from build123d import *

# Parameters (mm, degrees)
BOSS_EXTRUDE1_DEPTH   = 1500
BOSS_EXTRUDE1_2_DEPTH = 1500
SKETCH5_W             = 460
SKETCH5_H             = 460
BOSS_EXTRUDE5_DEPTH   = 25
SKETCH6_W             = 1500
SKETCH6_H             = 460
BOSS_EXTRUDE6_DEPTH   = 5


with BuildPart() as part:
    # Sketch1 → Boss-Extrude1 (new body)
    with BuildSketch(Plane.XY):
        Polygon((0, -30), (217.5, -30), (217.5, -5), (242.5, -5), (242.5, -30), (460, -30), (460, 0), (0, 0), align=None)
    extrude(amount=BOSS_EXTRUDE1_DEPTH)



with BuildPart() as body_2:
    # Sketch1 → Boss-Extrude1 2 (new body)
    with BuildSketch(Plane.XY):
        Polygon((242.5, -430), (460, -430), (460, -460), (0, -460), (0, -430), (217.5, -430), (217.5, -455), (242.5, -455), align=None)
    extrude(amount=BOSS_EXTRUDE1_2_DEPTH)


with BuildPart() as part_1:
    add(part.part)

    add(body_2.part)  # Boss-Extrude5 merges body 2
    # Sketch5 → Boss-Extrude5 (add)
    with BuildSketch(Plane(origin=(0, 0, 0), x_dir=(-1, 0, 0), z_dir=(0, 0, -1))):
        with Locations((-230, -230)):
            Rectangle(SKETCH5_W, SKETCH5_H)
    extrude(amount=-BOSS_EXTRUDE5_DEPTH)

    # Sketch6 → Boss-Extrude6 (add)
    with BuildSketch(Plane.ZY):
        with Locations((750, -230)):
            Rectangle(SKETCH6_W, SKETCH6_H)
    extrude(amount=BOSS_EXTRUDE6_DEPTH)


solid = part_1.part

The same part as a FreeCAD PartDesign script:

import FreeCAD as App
import Part
import Sketcher

V = App.Vector


def add_polygon(sketch, points):
    """Adds a closed chain of lines whose ends are joined by coincident constraints."""
    first, n = sketch.GeometryCount, len(points)
    for a, b in zip(points, points[1:] + points[:1]):
        sketch.addGeometry(Part.LineSegment(App.Vector(*a, 0), App.Vector(*b, 0)), False)
    for i in range(n):
        sketch.addConstraint(Sketcher.Constraint("Coincident", first + i, 2, first + (i + 1) % n, 1))

doc = App.newDocument("Part")
body = doc.addObject("PartDesign::Body", "Body")

sketch1 = doc.addObject("Sketcher::SketchObject", "Sketch")
body.addObject(sketch1)
sketch1.AttachmentSupport = (doc.XY_Plane, [""])
sketch1.MapMode = "FlatFace"
add_polygon(sketch1, [(0, -30), (217.5, -30), (217.5, -5), (242.5, -5), (242.5, -30), (460, -30), (460, 0), (0, 0)])
sketch1.addConstraint(Sketcher.Constraint("Horizontal", 0))
sketch1.addConstraint(Sketcher.Constraint("Vertical", 1))
sketch1.addConstraint(Sketcher.Constraint("Horizontal", 2))
sketch1.addConstraint(Sketcher.Constraint("Vertical", 3))
sketch1.addConstraint(Sketcher.Constraint("Horizontal", 4))
sketch1.addConstraint(Sketcher.Constraint("Vertical", 5))
sketch1.addConstraint(Sketcher.Constraint("Horizontal", 6))
sketch1.addConstraint(Sketcher.Constraint("Vertical", 7))
sketch1.addConstraint(Sketcher.Constraint("Coincident", 6, 2, -1, 1))
sketch1.addConstraint(Sketcher.Constraint("Horizontal", 0, 2, 3, 2))
sketch1.addConstraint(Sketcher.Constraint("Equal", 0, 4))
sketch1.addConstraint(Sketcher.Constraint("Equal", 2, 1))
sketch1.addConstraint(Sketcher.Constraint("DistanceX", 2, 1, 2, 2, 25.0))
sketch1.addConstraint(Sketcher.Constraint("DistanceX", 6, 2, 6, 1, 460.0))
sketch1.addConstraint(Sketcher.Constraint("DistanceY", 5, 1, 5, 2, 30.0))
pad1 = doc.addObject("PartDesign::Pad", "Pad")
body.addObject(pad1)
pad1.Profile = sketch1
pad1.Length = 1500
body2 = doc.addObject("PartDesign::Body", "Body001")

sketch2 = doc.addObject("Sketcher::SketchObject", "Sketch001")
body2.addObject(sketch2)
sketch2.AttachmentSupport = (doc.getObject("XY_Plane001"), [""])
sketch2.MapMode = "FlatFace"
add_polygon(sketch2, [(460, -430), (242.5, -430), (242.5, -455), (217.5, -455), (217.5, -430), (0, -430), (0, -460), (460, -460)])
sketch2.addConstraint(Sketcher.Constraint("Horizontal", 0))
sketch2.addConstraint(Sketcher.Constraint("Vertical", 1))
sketch2.addConstraint(Sketcher.Constraint("Horizontal", 2))
sketch2.addConstraint(Sketcher.Constraint("Vertical", 3))
sketch2.addConstraint(Sketcher.Constraint("Horizontal", 4))
sketch2.addConstraint(Sketcher.Constraint("Vertical", 5))
sketch2.addConstraint(Sketcher.Constraint("Horizontal", 6))
sketch2.addConstraint(Sketcher.Constraint("Vertical", 7))
sketch2.addConstraint(Sketcher.Constraint("PointOnObject", 4, 2, -2))
sketch2.addConstraint(Sketcher.Constraint("Horizontal", 0, 2, 3, 2))
sketch2.addConstraint(Sketcher.Constraint("Equal", 0, 4))
sketch2.addConstraint(Sketcher.Constraint("Equal", 2, 1))
sketch2.addConstraint(Sketcher.Constraint("DistanceX", 2, 2, 2, 1, 25.0))
sketch2.addConstraint(Sketcher.Constraint("DistanceX", 6, 1, 6, 2, 460.0))
sketch2.addConstraint(Sketcher.Constraint("DistanceY", 5, 2, 5, 1, 30.0))
sketch2.addConstraint(Sketcher.Constraint("DistanceY", 0, 2, -1, 1, 430.0))
pad2 = doc.addObject("PartDesign::Pad", "Pad001")
body2.addObject(pad2)
pad2.Profile = sketch2
pad2.Length = 1500
body.AllowCompound = True
doc.recompute()

boolean = doc.addObject("PartDesign::Boolean", "Boolean")
body.addObject(boolean)
boolean.Type = "Fuse"
boolean.addObjects([body2])

sketch3 = doc.addObject("Sketcher::SketchObject", "Sketch002")
body.addObject(sketch3)
sketch3.AttachmentSupport = (doc.XY_Plane, [""])
sketch3.MapMode = "FlatFace"
add_polygon(sketch3, [(460, 0), (460, -460), (0, -460), (0, 0)])
sketch3.addConstraint(Sketcher.Constraint("Vertical", 0))
sketch3.addConstraint(Sketcher.Constraint("Horizontal", 1))
sketch3.addConstraint(Sketcher.Constraint("Vertical", 2))
sketch3.addConstraint(Sketcher.Constraint("Horizontal", 3))
sketch3.addConstraint(Sketcher.Constraint("Coincident", 2, 2, -1, 1))
sketch3.addConstraint(Sketcher.Constraint("Equal", 3, 0))
sketch3.addConstraint(Sketcher.Constraint("DistanceX", 1, 2, 1, 1, 460.0))
pad3 = doc.addObject("PartDesign::Pad", "Pad002")
body.addObject(pad3)
pad3.Profile = sketch3
pad3.Length = 25

sketch4 = doc.addObject("Sketcher::SketchObject", "Sketch003")
body.addObject(sketch4)
sketch4.AttachmentSupport = (doc.YZ_Plane, [""])
sketch4.MapMode = "FlatFace"
add_polygon(sketch4, [(0, 0), (-460, 0), (-460, 1500), (0, 1500)])
sketch4.addConstraint(Sketcher.Constraint("Horizontal", 0))
sketch4.addConstraint(Sketcher.Constraint("Vertical", 1))
sketch4.addConstraint(Sketcher.Constraint("Horizontal", 2))
sketch4.addConstraint(Sketcher.Constraint("Vertical", 3))
sketch4.addConstraint(Sketcher.Constraint("Coincident", 3, 2, -1, 1))
sketch4.addConstraint(Sketcher.Constraint("DistanceX", 0, 2, 0, 1, 460.0))
sketch4.addConstraint(Sketcher.Constraint("DistanceY", 1, 1, 1, 2, 1500.0))
pad4 = doc.addObject("PartDesign::Pad", "Pad003")
body.addObject(pad4)
pad4.Profile = sketch4
pad4.Length = 5
pad4.Reversed = True

doc.recompute()
